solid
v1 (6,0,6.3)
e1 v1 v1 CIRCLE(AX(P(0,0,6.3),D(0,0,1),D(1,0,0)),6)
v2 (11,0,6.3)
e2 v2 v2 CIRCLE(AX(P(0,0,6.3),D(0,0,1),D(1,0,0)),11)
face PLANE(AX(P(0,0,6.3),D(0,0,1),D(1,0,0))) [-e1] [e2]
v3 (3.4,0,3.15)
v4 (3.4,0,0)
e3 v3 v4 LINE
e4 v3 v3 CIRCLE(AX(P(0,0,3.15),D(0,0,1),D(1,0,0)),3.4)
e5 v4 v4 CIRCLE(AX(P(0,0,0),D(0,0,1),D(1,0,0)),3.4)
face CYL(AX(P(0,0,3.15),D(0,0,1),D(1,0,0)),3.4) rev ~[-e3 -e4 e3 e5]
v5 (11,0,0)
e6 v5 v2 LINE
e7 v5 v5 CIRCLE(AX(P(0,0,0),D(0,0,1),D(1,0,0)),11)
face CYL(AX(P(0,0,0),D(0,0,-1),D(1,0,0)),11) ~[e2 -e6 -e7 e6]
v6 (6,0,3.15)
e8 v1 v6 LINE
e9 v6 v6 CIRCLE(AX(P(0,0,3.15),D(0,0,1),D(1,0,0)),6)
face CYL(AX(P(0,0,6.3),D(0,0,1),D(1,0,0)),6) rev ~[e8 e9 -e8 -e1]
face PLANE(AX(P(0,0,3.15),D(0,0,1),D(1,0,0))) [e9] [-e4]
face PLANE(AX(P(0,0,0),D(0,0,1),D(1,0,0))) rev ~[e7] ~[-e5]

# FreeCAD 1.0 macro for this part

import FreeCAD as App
import Part
import Sketcher

doc = App.newDocument("Part")
body = doc.addObject("PartDesign::Body", "Body")

# Sketch on XY plane
sketch1 = doc.addObject("Sketcher::SketchObject", "Sketch")
body.addObject(sketch1)
sketch1.AttachmentSupport = (doc.XY_Plane, [""])
sketch1.MapMode = "FlatFace"
sketch1.addGeometry(Part.Circle(App.Vector(0, 0, 0), App.Vector(0, 0, 1), 11), False)
sketch1.addConstraint(Sketcher.Constraint("Coincident", 0, 3, -1, 1))
sketch1.addConstraint(Sketcher.Constraint("Diameter", 0, 22.0))
pad1 = doc.addObject("PartDesign::Pad", "Pad")
body.addObject(pad1)
pad1.Profile = sketch1
pad1.Length = 6.3

# Sketch on XY plane
sketch2 = doc.addObject("Sketcher::SketchObject", "Sketch001")
body.addObject(sketch2)
sketch2.AttachmentSupport = (doc.XY_Plane, [""])
sketch2.MapMode = "FlatFace"
sketch2.AttachmentOffset = App.Placement(App.Vector(0, 0, 6.3), App.Rotation())
sketch2.addGeometry(Part.Circle(App.Vector(0, 0, 0), App.Vector(0, 0, 1), 6), False)
sketch2.addConstraint(Sketcher.Constraint("Coincident", 0, 3, -1, 1))
sketch2.addConstraint(Sketcher.Constraint("Diameter", 0, 12.0))
pocket1 = doc.addObject("PartDesign::Pocket", "Pocket")
body.addObject(pocket1)
pocket1.Profile = sketch2
pocket1.Length = 3.15

# Sketch on XY plane
sketch3 = doc.addObject("Sketcher::SketchObject", "Sketch002")
body.addObject(sketch3)
sketch3.AttachmentSupport = (doc.XY_Plane, [""])
sketch3.MapMode = "FlatFace"
sketch3.AttachmentOffset = App.Placement(App.Vector(0, 0, 3.15), App.Rotation())
sketch3.addGeometry(Part.Circle(App.Vector(0, 0, 0), App.Vector(0, 0, 1), 3.4), False)
sketch3.addConstraint(Sketcher.Constraint("Coincident", 0, 3, -1, 1))
sketch3.addConstraint(Sketcher.Constraint("Diameter", 0, 6.8))
pocket2 = doc.addObject("PartDesign::Pocket", "Pocket001")
body.addObject(pocket2)
pocket2.Profile = sketch3
pocket2.Type = "ThroughAll"

doc.recompute()
